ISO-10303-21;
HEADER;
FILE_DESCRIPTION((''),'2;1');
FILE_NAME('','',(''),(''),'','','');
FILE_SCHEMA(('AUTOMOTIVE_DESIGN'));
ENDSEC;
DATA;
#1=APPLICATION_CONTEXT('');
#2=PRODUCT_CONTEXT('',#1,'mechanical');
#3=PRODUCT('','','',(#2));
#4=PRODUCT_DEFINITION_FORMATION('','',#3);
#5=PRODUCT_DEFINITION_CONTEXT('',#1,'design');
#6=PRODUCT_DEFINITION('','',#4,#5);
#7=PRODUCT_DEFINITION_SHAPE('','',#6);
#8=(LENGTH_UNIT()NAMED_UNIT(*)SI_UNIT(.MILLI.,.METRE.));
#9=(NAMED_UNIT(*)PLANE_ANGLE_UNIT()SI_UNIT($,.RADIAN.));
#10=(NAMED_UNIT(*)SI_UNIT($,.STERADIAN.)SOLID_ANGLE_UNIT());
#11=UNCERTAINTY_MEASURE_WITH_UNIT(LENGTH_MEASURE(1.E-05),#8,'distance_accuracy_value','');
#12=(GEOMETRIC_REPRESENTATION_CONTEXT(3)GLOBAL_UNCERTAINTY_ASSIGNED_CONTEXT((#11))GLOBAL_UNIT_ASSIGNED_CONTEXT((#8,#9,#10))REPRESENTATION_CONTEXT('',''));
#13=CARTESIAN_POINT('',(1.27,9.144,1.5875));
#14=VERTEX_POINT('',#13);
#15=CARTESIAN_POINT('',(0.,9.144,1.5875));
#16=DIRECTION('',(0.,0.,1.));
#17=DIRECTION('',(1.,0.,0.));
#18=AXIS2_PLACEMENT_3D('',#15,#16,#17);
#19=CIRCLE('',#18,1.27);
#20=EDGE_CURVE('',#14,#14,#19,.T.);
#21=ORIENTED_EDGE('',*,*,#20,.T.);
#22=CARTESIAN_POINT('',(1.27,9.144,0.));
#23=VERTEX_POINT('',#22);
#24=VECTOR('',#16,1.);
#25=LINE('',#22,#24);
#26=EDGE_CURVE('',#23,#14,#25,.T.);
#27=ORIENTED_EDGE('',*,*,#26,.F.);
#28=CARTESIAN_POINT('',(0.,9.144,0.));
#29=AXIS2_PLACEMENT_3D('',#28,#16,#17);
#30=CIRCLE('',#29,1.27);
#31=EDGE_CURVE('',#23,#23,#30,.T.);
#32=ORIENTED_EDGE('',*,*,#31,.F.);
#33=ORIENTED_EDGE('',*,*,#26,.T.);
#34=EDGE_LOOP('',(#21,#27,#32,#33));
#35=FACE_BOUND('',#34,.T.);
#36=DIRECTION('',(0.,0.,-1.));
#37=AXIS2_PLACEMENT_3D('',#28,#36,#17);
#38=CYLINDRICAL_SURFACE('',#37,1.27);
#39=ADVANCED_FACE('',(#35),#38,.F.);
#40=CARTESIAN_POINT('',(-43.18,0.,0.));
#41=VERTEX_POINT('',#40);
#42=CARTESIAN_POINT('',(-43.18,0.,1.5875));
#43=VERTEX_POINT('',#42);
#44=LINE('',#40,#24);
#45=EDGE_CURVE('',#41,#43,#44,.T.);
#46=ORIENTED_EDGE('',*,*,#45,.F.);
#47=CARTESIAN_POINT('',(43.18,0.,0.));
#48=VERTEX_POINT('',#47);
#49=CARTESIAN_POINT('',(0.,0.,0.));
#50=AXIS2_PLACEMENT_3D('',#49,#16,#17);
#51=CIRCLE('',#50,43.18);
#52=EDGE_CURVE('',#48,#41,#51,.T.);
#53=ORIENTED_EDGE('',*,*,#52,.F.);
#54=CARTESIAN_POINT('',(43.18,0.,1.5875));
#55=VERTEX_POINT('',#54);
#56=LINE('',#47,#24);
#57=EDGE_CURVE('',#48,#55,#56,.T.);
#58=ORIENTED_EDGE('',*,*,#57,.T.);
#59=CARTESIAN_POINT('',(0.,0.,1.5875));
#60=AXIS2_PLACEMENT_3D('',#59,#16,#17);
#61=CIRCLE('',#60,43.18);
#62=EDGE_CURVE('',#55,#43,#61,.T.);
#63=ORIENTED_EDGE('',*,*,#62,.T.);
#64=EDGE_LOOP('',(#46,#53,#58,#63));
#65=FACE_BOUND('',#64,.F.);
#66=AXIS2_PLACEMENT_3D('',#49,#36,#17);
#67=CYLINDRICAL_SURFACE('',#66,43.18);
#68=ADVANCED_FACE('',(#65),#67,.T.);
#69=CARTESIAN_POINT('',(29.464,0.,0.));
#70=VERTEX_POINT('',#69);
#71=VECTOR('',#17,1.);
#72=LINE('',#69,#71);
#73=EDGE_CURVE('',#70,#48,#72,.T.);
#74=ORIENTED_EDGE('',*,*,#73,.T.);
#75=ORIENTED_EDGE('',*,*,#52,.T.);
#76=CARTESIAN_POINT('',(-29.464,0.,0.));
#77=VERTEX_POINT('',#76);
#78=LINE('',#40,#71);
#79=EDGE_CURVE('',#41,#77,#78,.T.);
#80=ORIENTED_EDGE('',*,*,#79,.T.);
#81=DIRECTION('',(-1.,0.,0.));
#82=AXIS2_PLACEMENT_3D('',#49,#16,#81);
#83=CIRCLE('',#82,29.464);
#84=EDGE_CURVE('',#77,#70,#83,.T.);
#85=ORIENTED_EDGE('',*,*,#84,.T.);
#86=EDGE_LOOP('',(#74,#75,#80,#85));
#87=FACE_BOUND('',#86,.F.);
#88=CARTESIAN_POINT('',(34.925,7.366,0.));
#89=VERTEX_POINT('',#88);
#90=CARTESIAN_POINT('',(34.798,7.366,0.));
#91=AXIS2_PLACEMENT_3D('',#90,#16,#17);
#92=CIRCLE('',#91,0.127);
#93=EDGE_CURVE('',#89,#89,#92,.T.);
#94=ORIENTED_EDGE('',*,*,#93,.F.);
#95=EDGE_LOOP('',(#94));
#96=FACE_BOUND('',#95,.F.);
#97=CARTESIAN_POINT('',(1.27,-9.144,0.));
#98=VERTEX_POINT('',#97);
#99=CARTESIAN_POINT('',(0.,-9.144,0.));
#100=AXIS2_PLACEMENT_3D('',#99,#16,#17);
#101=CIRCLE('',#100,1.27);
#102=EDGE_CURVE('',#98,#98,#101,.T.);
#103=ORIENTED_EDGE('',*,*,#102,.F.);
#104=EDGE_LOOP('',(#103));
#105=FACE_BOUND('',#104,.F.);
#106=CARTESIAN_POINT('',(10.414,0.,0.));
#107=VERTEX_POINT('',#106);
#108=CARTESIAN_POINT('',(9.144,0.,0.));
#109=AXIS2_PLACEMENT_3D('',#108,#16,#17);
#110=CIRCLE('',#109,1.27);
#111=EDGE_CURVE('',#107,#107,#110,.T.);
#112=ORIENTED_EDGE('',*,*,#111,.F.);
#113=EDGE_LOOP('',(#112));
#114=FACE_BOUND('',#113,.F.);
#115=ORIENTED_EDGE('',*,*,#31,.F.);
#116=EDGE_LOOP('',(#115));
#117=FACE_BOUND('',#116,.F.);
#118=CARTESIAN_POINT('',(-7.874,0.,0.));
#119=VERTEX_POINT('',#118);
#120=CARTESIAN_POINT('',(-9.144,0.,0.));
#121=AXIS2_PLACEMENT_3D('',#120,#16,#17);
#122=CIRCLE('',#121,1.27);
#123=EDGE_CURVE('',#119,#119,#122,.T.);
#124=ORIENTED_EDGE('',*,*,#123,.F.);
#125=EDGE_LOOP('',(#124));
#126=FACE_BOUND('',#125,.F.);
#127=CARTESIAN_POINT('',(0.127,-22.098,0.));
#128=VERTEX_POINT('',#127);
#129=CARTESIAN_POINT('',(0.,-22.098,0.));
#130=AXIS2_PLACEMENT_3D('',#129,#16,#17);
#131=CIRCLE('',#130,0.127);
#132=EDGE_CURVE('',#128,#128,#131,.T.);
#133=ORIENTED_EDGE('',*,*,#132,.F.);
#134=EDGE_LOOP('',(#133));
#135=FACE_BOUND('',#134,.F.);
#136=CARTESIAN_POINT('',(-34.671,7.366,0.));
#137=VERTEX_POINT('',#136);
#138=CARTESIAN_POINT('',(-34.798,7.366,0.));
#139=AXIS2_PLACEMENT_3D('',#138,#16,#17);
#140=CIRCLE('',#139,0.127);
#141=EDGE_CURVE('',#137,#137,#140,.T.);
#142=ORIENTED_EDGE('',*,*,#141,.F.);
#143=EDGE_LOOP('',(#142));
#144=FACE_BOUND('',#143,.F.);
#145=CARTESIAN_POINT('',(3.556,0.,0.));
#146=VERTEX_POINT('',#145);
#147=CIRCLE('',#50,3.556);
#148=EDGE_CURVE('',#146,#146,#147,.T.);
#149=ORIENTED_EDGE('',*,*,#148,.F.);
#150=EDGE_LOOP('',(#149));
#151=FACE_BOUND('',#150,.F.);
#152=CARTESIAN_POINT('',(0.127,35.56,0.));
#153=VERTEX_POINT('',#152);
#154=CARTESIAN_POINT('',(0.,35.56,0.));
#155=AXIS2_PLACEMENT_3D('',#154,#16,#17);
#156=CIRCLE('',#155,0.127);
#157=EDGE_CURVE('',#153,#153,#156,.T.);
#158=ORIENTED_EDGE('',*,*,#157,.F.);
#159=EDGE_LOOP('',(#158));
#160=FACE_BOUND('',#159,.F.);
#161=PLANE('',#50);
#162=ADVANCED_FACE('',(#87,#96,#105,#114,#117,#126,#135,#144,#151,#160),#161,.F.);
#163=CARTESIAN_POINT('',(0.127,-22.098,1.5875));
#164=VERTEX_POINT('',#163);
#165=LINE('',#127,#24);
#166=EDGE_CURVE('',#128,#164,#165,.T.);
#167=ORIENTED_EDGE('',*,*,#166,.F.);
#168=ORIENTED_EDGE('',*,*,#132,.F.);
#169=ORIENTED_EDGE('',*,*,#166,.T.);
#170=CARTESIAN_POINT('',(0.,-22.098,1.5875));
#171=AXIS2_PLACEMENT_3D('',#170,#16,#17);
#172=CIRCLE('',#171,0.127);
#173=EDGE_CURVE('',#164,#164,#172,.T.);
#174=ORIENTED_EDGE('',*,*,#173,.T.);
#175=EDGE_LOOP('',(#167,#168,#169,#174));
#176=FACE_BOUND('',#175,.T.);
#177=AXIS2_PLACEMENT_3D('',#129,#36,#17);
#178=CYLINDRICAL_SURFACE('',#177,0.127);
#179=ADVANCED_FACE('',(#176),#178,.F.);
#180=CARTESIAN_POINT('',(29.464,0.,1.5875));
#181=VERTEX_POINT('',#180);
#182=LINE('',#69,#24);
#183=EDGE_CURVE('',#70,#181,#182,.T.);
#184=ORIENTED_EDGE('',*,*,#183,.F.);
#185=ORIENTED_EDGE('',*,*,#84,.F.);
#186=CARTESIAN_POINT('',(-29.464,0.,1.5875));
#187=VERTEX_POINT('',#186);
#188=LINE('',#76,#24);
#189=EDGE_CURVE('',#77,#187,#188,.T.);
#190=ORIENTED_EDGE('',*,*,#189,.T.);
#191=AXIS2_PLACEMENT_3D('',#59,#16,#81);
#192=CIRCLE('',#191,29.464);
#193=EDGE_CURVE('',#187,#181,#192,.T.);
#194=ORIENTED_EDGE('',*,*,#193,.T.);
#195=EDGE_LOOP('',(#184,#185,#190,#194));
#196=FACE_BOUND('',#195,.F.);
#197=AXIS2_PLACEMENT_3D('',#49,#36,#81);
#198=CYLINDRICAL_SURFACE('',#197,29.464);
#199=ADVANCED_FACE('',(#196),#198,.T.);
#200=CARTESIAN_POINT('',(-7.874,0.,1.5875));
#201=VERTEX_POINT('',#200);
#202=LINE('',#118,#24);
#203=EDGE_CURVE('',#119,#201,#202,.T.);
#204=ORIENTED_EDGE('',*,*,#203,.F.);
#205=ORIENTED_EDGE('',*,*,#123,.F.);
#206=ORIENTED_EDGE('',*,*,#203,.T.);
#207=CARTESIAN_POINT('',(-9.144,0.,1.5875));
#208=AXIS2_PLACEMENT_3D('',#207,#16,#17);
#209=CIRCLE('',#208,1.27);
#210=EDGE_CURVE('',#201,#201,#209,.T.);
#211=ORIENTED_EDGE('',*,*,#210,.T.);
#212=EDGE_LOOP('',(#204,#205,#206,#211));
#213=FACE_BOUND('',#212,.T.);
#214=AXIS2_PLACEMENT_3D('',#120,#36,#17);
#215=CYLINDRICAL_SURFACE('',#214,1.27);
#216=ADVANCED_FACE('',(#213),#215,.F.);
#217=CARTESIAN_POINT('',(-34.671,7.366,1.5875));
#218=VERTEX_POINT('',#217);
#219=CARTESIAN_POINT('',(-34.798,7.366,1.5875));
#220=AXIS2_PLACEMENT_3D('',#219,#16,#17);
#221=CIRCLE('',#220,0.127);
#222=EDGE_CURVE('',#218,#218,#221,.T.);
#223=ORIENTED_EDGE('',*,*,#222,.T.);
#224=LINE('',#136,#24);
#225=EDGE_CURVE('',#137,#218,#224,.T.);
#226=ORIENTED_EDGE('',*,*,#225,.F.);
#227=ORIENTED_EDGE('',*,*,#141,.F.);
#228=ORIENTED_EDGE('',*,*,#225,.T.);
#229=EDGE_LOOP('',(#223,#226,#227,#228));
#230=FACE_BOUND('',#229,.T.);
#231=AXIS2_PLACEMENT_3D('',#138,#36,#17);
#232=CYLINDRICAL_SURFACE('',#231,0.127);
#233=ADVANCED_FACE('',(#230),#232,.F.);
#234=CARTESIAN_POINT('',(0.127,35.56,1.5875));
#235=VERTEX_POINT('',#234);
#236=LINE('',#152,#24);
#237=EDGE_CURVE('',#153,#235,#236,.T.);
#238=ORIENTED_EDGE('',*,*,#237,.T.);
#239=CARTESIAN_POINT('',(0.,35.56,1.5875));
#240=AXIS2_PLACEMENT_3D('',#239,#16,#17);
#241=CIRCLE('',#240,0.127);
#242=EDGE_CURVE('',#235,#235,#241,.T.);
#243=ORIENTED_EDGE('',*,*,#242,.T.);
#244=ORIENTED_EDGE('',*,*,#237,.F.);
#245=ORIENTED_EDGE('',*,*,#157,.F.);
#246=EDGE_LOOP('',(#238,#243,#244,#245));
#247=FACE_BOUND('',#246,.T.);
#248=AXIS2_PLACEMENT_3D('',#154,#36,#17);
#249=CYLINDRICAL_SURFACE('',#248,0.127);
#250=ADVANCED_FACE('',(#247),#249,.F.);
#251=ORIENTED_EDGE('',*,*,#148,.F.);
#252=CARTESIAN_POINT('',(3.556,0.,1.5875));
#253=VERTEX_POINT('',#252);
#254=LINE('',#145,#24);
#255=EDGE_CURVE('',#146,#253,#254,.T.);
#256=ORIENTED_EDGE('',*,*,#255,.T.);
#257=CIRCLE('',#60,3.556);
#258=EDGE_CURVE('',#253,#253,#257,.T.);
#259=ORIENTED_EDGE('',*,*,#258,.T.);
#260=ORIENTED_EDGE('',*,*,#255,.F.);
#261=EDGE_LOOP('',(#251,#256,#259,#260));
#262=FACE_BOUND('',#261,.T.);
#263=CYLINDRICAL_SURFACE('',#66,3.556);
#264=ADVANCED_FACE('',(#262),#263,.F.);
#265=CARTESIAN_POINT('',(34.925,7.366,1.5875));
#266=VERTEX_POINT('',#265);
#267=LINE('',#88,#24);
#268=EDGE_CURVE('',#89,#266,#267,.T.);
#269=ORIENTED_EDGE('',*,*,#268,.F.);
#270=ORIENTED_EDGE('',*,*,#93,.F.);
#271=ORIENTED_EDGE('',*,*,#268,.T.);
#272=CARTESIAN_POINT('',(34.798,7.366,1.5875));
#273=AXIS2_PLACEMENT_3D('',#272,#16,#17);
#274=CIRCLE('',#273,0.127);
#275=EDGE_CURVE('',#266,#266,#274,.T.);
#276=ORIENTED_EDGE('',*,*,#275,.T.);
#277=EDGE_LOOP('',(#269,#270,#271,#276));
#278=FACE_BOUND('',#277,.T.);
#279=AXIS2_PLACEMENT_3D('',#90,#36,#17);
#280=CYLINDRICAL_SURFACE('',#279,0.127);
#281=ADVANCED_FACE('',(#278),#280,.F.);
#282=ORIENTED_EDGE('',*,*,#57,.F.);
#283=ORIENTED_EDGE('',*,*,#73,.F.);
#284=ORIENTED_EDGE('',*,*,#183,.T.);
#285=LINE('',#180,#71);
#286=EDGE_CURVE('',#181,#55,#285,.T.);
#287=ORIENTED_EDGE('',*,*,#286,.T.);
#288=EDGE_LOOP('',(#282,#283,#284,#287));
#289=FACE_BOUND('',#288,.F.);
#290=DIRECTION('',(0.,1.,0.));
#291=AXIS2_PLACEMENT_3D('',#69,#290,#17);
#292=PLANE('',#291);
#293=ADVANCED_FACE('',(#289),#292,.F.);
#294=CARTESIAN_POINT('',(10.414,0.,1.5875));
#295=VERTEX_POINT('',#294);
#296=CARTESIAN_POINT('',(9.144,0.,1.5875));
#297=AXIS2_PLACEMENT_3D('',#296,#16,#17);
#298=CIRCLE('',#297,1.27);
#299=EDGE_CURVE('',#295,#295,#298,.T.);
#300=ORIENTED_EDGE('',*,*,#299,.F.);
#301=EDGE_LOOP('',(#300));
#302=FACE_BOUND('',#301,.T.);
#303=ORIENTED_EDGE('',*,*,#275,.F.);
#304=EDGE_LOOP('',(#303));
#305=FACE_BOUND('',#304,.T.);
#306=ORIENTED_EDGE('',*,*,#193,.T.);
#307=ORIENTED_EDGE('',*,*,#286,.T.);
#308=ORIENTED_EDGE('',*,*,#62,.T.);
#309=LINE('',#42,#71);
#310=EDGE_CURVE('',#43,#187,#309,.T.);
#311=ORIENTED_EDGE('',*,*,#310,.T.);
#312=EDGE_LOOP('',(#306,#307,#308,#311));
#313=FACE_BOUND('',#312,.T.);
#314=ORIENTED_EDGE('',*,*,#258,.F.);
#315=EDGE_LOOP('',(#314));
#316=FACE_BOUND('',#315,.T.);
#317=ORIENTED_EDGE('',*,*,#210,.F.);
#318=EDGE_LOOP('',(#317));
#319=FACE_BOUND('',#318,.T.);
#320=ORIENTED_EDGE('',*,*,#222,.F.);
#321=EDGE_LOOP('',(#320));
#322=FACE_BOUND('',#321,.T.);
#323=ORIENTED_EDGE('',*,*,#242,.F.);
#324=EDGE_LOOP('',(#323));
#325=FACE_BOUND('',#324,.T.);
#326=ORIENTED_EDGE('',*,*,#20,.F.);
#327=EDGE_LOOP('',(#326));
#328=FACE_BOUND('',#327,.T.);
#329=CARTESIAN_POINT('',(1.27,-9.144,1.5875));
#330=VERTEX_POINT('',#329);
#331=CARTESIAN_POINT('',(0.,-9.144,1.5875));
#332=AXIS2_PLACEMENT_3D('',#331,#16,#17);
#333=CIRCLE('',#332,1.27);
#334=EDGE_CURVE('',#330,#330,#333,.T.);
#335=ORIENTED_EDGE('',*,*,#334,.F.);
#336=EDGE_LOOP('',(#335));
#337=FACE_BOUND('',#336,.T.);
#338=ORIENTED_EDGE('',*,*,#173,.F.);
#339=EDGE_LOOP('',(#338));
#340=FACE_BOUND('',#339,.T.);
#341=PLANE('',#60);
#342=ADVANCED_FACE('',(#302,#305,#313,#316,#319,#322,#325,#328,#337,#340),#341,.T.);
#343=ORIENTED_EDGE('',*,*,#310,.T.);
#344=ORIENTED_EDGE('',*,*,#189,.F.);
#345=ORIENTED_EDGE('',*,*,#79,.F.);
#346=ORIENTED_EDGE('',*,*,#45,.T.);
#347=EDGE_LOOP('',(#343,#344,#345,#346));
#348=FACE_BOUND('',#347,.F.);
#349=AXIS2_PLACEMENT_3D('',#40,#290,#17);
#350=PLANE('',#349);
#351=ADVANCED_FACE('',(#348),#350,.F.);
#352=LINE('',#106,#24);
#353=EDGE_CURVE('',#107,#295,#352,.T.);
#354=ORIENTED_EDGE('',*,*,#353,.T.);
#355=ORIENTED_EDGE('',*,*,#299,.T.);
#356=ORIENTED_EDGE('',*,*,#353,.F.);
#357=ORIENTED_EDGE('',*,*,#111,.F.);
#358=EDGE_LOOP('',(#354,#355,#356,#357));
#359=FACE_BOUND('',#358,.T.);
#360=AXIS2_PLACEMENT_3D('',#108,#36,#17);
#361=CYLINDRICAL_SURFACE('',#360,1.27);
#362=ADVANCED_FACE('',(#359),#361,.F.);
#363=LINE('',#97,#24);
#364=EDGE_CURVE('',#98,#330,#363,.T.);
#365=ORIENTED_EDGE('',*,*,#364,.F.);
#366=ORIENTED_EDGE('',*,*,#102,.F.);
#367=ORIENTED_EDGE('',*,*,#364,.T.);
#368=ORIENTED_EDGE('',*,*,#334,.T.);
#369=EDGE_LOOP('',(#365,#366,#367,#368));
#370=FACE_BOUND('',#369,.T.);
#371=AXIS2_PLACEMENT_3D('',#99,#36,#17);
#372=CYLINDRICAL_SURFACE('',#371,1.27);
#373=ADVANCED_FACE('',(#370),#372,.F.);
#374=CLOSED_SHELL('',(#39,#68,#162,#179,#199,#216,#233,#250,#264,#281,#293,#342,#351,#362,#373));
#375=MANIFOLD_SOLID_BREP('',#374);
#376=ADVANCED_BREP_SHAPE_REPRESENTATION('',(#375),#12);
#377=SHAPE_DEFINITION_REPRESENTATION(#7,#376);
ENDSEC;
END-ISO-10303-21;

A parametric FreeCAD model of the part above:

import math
import FreeCAD as App
import Part
import Sketcher

V = App.Vector
Q = App.Units.Quantity

doc = App.newDocument("Part")
body = doc.addObject("PartDesign::Body", "Body")

sketch1 = body.newObject("Sketcher::SketchObject", "Sketch")
sketch1.AttachmentSupport = (doc.getObject("XY_Plane"), [""])
sketch1.MapMode = "FlatFace"
sketch1.addGeometry(Part.LineSegment(V(29.46, 0, 0), V(43.18, 0, 0)), False)
sketch1.addGeometry(Part.ArcOfCircle(Part.Circle(V(0, 0, 0), V(0, 0, 1), 43.18), math.radians(0), math.radians(180)), False)
sketch1.addGeometry(Part.LineSegment(V(-43.18, 0, 0), V(-29.46, 0, 0)), False)
sketch1.addGeometry(Part.ArcOfCircle(Part.Circle(V(0, 0, 0), V(0, 0, 1), 29.46), math.radians(180), math.radians(360)), False)
sketch1.addGeometry(Part.Circle(V(-9.14, 0, 0), V(0, 0, 1), 1.27), False)
sketch1.addGeometry(Part.Circle(V(0, -22.1, 0), V(0, 0, 1), 0.13), False)
sketch1.addGeometry(Part.Circle(V(0, -9.14, 0), V(0, 0, 1), 1.27), False)
sketch1.addGeometry(Part.Circle(V(0, 0, 0), V(0, 0, 1), 3.56), False)
sketch1.addGeometry(Part.Circle(V(9.14, 0, 0), V(0, 0, 1), 1.27), False)
sketch1.addGeometry(Part.Circle(V(-34.8, 7.37, 0), V(0, 0, 1), 0.13), False)
sketch1.addGeometry(Part.Circle(V(0, 9.14, 0), V(0, 0, 1), 1.27), False)
sketch1.addGeometry(Part.Circle(V(34.8, 7.37, 0), V(0, 0, 1), 0.13), False)
sketch1.addGeometry(Part.Circle(V(0, 35.56, 0), V(0, 0, 1), 0.13), False)
sketch1.addConstraint(Sketcher.Constraint("Coincident", 0, 2, 1, 1))
sketch1.addConstraint(Sketcher.Constraint("Coincident", 1, 2, 2, 1))
sketch1.addConstraint(Sketcher.Constraint("Coincident", 2, 2, 3, 1))
sketch1.addConstraint(Sketcher.Constraint("Coincident", 3, 2, 0, 1))
sketch1.addConstraint(Sketcher.Constraint("Horizontal", 0))
sketch1.addConstraint(Sketcher.Constraint("Horizontal", 2))
sketch1.addConstraint(Sketcher.Constraint("Coincident", 1, 3, -1, 1))
sketch1.addConstraint(Sketcher.Constraint("Coincident", 3, 3, -1, 1))
sketch1.addConstraint(Sketcher.Constraint("Coincident", 7, 3, -1, 1))
sketch1.addConstraint(Sketcher.Constraint("Equal", 4, 6))
sketch1.addConstraint(Sketcher.Constraint("Equal", 6, 8))
sketch1.addConstraint(Sketcher.Constraint("Equal", 5, 9))
sketch1.addConstraint(Sketcher.Constraint("Equal", 8, 10))
sketch1.addConstraint(Sketcher.Constraint("Equal", 9, 11))
sketch1.addConstraint(Sketcher.Constraint("Equal", 11, 12))
sketch1.addConstraint(Sketcher.Constraint("Symmetric", 4, 3, 8, 3, -1, 1))
sketch1.addConstraint(Sketcher.Constraint("Symmetric", 6, 3, 10, 3, -1, 1))
sketch1.addConstraint(Sketcher.Constraint("Symmetric", 9, 3, 11, 3, -2))
sketch1.addConstraint(Sketcher.Constraint("PointOnObject", 4, 3, -1))
sketch1.addConstraint(Sketcher.Constraint("PointOnObject", 5, 3, -2))
sketch1.addConstraint(Sketcher.Constraint("PointOnObject", 6, 3, -2))
sketch1.addConstraint(Sketcher.Constraint("PointOnObject", 12, 3, -2))
sketch1.addConstraint(Sketcher.Constraint("PointOnObject", 0, 2, -1))
sketch1.addConstraint(Sketcher.Constraint("PointOnObject", 1, 2, -1))
sketch1.addConstraint(Sketcher.Constraint("Diameter", 4, Q("0.1 in")))
sketch1.addConstraint(Sketcher.Constraint("Radius", 1, Q("1.7 in")))
sketch1.addConstraint(Sketcher.Constraint("Diameter", 5, Q("0.01 in")))
sketch1.addConstraint(Sketcher.Constraint("Diameter", 7, Q("0.28 in")))
sketch1.addConstraint(Sketcher.Constraint("Radius", 3, Q("1.16 in")))
sketch1.addConstraint(Sketcher.Constraint("DistanceY", -1, 1, 12, 3, Q("1.4 in")))
sketch1.addConstraint(Sketcher.Constraint("DistanceX", 4, 3, -1, 1, Q("0.36 in")))
sketch1.addConstraint(Sketcher.Constraint("DistanceY", 5, 3, -1, 1, Q("0.87 in")))
sketch1.addConstraint(Sketcher.Constraint("DistanceY", 6, 3, -1, 1, Q("0.36 in")))
sketch1.addConstraint(Sketcher.Constraint("DistanceX", 9, 3, -1, 1, Q("1.37 in")))
sketch1.addConstraint(Sketcher.Constraint("DistanceY", -1, 1, 9, 3, Q("0.29 in")))
pad1 = body.newObject("PartDesign::Pad", "Pad")
pad1.Profile = sketch1
pad1.Length = Q("0.0625 in")

doc.recompute()
